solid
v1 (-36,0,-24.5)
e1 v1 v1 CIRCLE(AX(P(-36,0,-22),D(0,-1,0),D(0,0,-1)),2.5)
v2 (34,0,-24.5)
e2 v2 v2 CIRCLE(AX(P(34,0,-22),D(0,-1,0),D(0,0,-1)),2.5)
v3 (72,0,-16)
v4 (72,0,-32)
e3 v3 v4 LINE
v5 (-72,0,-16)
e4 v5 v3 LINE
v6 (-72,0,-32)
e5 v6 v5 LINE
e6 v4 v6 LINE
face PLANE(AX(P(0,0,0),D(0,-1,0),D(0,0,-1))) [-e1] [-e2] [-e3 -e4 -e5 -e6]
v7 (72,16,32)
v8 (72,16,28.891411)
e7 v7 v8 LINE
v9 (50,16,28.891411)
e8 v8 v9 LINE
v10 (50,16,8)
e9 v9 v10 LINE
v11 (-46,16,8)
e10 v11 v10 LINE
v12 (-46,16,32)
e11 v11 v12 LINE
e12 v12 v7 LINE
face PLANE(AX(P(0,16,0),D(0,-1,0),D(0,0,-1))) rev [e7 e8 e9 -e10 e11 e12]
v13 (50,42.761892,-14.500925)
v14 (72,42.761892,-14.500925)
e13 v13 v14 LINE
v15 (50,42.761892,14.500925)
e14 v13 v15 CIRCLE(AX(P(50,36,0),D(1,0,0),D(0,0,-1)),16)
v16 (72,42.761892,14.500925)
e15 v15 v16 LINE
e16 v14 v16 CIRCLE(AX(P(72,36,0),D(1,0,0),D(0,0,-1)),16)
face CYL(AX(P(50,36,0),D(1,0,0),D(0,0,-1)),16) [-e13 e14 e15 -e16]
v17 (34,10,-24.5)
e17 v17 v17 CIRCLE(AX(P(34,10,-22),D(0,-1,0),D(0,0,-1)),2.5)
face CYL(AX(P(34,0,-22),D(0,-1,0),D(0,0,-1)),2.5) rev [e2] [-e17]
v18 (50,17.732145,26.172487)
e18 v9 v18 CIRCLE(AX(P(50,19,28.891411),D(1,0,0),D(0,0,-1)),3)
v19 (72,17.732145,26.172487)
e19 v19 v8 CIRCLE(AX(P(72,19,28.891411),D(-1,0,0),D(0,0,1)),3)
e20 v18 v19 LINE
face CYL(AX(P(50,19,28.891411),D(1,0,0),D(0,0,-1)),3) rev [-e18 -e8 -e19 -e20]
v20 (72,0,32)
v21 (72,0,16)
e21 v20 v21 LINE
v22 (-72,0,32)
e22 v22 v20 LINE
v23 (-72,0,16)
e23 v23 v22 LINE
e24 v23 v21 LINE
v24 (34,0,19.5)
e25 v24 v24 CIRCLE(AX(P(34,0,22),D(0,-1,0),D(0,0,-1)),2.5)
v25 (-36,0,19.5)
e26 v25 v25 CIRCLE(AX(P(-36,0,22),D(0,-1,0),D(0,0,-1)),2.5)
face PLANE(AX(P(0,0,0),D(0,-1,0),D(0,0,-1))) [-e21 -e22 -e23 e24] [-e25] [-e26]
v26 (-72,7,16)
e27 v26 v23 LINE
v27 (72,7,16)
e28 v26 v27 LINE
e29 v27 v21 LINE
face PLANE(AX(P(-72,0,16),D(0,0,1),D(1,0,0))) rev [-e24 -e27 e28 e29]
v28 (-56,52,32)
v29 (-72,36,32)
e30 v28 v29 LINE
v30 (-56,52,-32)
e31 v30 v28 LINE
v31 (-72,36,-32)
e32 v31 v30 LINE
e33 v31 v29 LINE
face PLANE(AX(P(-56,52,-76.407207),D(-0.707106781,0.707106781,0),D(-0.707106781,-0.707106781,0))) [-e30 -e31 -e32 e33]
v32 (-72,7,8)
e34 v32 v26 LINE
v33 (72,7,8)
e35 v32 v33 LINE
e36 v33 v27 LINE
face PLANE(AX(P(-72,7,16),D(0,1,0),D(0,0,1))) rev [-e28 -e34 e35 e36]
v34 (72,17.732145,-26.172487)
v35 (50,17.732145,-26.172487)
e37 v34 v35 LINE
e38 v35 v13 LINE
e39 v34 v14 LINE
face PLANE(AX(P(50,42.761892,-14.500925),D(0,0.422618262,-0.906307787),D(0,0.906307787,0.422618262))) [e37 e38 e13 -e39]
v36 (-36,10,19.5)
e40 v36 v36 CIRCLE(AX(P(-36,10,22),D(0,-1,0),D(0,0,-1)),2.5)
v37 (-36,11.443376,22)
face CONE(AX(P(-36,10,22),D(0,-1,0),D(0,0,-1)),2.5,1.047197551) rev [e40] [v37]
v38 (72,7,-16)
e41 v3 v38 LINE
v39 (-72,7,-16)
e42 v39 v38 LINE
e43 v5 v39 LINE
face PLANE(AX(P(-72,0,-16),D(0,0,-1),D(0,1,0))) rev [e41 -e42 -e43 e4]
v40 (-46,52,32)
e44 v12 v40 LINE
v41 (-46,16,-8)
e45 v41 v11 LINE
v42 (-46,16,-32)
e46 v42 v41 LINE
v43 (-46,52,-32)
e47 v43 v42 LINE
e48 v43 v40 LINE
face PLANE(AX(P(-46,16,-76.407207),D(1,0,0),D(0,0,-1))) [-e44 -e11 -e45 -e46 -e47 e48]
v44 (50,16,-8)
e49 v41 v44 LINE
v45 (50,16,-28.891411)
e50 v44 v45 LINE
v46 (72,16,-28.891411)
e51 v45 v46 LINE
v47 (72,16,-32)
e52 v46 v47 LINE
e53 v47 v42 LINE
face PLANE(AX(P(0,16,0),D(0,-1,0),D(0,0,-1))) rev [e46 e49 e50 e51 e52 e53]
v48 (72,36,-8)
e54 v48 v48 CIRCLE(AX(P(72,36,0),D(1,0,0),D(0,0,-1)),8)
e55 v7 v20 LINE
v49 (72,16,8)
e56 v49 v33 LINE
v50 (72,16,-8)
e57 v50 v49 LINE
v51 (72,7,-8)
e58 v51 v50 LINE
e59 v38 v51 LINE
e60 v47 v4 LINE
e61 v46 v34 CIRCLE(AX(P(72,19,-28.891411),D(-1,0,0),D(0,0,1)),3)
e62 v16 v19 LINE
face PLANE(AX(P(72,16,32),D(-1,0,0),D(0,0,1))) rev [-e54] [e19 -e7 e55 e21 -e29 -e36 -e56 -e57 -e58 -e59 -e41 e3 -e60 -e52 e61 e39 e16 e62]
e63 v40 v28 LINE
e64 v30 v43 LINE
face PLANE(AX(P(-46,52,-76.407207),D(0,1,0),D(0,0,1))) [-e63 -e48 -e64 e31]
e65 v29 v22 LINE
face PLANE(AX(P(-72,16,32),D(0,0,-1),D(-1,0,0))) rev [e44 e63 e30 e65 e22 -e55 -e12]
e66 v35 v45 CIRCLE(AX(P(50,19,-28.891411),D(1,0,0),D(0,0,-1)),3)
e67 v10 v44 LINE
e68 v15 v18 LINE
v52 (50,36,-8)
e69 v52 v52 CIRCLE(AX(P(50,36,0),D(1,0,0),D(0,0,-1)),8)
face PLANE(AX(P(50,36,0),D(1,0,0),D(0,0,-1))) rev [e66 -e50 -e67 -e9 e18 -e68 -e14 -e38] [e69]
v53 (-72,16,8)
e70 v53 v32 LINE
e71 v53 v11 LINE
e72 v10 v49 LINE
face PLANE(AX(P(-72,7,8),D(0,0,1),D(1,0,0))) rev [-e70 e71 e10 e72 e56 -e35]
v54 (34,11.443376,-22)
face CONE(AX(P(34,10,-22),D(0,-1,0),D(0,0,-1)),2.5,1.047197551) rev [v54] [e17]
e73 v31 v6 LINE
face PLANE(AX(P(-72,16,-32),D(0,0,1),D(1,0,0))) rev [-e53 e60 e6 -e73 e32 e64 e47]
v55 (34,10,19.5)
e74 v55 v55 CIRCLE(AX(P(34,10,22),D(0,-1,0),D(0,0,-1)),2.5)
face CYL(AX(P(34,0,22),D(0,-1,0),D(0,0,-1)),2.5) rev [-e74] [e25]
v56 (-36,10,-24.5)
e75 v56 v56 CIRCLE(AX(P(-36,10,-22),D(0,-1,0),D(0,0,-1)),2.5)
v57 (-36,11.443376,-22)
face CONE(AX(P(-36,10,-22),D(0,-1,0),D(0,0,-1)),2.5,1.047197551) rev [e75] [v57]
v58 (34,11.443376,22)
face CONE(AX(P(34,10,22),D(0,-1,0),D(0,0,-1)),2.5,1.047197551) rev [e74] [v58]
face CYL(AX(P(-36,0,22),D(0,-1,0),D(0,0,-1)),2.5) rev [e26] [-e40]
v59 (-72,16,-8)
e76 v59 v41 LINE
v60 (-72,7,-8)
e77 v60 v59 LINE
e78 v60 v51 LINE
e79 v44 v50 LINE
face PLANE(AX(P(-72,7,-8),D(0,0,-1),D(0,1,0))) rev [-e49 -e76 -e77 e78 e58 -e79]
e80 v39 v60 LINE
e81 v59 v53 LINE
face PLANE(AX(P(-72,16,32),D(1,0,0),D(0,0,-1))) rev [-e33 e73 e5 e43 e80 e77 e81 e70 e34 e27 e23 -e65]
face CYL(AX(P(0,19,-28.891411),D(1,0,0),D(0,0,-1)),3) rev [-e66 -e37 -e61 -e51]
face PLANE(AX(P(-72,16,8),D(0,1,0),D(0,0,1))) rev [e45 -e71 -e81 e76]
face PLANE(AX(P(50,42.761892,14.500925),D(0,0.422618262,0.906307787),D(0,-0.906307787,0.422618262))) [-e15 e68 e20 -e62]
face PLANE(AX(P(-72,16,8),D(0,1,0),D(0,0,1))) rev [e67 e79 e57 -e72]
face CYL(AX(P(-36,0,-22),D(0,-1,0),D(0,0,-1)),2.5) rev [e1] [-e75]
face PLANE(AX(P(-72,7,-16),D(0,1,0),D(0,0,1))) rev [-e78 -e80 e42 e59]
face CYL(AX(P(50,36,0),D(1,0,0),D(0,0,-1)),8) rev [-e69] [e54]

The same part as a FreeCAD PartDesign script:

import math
import FreeCAD as App
import Part
import Sketcher

V = App.Vector
Q = App.Units.Quantity


def edges_at(feature, points):
    """Names of the edges that pass closest to the given points."""
    edges = feature.Shape.Edges
    near = lambda p: min(range(len(edges)), key=lambda i: edges[i].distToShape(Part.Vertex(*p))[0])
    return sorted({f"Edge{near(p) + 1}" for p in points})

doc = App.newDocument("Part")
body = doc.addObject("PartDesign::Body", "Body")

sketch1 = body.newObject("Sketcher::SketchObject", "Sketch")
sketch1.AttachmentSupport = (doc.getObject("XZ_Plane"), [""])
sketch1.MapMode = "FlatFace"
sketch1.addGeometry([
    Part.LineSegment(V(-72, -32, 0), V(-72, 32, 0)),
    Part.LineSegment(V(-72, 32, 0), V(72, 32, 0)),
    Part.LineSegment(V(72, 32, 0), V(72, -32, 0)),
    Part.LineSegment(V(72, -32, 0), V(-72, -32, 0)),
], False)
sketch1.addConstraint([
    Sketcher.Constraint("Coincident", 0, 2, 1, 1),
    Sketcher.Constraint("Coincident", 1, 2, 2, 1),
    Sketcher.Constraint("Coincident", 2, 2, 3, 1),
    Sketcher.Constraint("Coincident", 3, 2, 0, 1),
    Sketcher.Constraint("Vertical", 0),
    Sketcher.Constraint("Horizontal", 1),
    Sketcher.Constraint("Vertical", 2),
    Sketcher.Constraint("Horizontal", 3),
    Sketcher.Constraint("Symmetric", 0, 2, 2, 2, -1, 1),
    Sketcher.Constraint("DistanceX", 1, 1, 1, 2, 144.0),
    Sketcher.Constraint("DistanceY", 0, 1, 0, 2, 64.0),
])
pad1 = body.newObject("PartDesign::Pad", "Pad")
pad1.Profile = sketch1
pad1.Length = 16
pad1.Reversed = True

sketch2 = body.newObject("Sketcher::SketchObject", "Sketch001")
sketch2.AttachmentSupport = (doc.getObject("XY_Plane"), [""])
sketch2.MapMode = "FlatFace"
sketch2.AttachmentOffset = App.Placement(V(0, 0, 32), App.Rotation())
sketch2.addGeometry([
    Part.LineSegment(V(-46, 16, 0), V(-46, 52, 0)),
    Part.LineSegment(V(-46, 52, 0), V(-56, 52, 0)),
    Part.LineSegment(V(-56, 52, 0), V(-72, 36, 0)),
    Part.LineSegment(V(-72, 36, 0), V(-72, 16, 0)),
    Part.LineSegment(V(-72, 16, 0), V(-46, 16, 0)),
], False)
sketch2.addConstraint([
    Sketcher.Constraint("Coincident", 0, 2, 1, 1),
    Sketcher.Constraint("Coincident", 1, 2, 2, 1),
    Sketcher.Constraint("Coincident", 2, 2, 3, 1),
    Sketcher.Constraint("Coincident", 3, 2, 4, 1),
    Sketcher.Constraint("Coincident", 4, 2, 0, 1),
    Sketcher.Constraint("Vertical", 0),
    Sketcher.Constraint("Horizontal", 1),
    Sketcher.Constraint("Vertical", 3),
    Sketcher.Constraint("Horizontal", 4),
    Sketcher.Constraint("DistanceX", 1, 2, 1, 1, 10.0),
    Sketcher.Constraint("DistanceX", 4, 1, 4, 2, 26.0),
    Sketcher.Constraint("DistanceY", 0, 1, 0, 2, 36.0),
    Sketcher.Constraint("DistanceY", 3, 2, 3, 1, 20.0),
    Sketcher.Constraint("DistanceX", 0, 2, -1, 1, 46.0),
    Sketcher.Constraint("DistanceY", -1, 1, 0, 2, 52.0),
])
pad2 = body.newObject("PartDesign::Pad", "Pad001")
pad2.Profile = sketch2
pad2.Length = 64
pad2.Reversed = True

sketch3 = body.newObject("Sketcher::SketchObject", "Sketch002")
sketch3.AttachmentSupport = (doc.getObject("YZ_Plane"), [""])
sketch3.MapMode = "FlatFace"
sketch3.AttachmentOffset = App.Placement(V(0, 0, 72), App.Rotation())
sketch3.addGeometry([
    Part.LineSegment(V(43, 15, 0), V(16, 27, 0)),
    Part.LineSegment(V(16, 27, 0), V(16, -27, 0)),
    Part.LineSegment(V(16, -27, 0), V(43, -15, 0)),
    Part.ArcOfCircle(Part.Circle(V(36, 0, 0), V(0, 0, 1), 16), math.radians(-65), math.radians(65)),
    Part.Circle(V(36, 0, 0), V(0, 0, 1), 8),
], False)
sketch3.addConstraint([
    Sketcher.Constraint("Coincident", 0, 2, 1, 1),
    Sketcher.Constraint("Coincident", 1, 2, 2, 1),
    Sketcher.Constraint("Tangent", 2, 2, 3, 1),
    Sketcher.Constraint("Tangent", 3, 2, 0, 1),
    Sketcher.Constraint("Vertical", 1),
    Sketcher.Constraint("Coincident", 4, 3, 3, 3),
    Sketcher.Constraint("Symmetric", 2, 2, 3, 2, -1),
    Sketcher.Constraint("Diameter", 4, 16.0),
    Sketcher.Constraint("Radius", 3, 16.0),
    Sketcher.Constraint("Angle", 0, Q("155 deg")),
    Sketcher.Constraint("DistanceX", -1, 1, 3, 3, 36.0),
    Sketcher.Constraint("DistanceX", -1, 1, 0, 2, 16.0),
])
pad3 = body.newObject("PartDesign::Pad", "Pad002")
pad3.Profile = sketch3
pad3.Length = 22
pad3.Reversed = True
doc.recompute()

fillet = body.newObject("PartDesign::Fillet", "Fillet")
fillet.Base = (pad3, edges_at(pad3, [(61, 16, -26.98), (61, 16, 26.98)]))
fillet.Radius = 3

sketch4 = body.newObject("Sketcher::SketchObject", "Sketch003")
sketch4.AttachmentSupport = (doc.getObject("YZ_Plane"), [""])
sketch4.MapMode = "FlatFace"
sketch4.AttachmentOffset = App.Placement(V(0, 0, 72), App.Rotation())
sketch4.addGeometry([
    Part.LineSegment(V(7, 16, 0), V(0, 16, 0)),
    Part.LineSegment(V(0, 16, 0), V(0, -16, 0)),
    Part.LineSegment(V(0, -16, 0), V(7, -16, 0)),
    Part.LineSegment(V(7, -16, 0), V(7, -8, 0)),
    Part.LineSegment(V(7, -8, 0), V(16, -8, 0)),
    Part.LineSegment(V(16, -8, 0), V(16, 8, 0)),
    Part.LineSegment(V(16, 8, 0), V(7, 8, 0)),
    Part.LineSegment(V(7, 8, 0), V(7, 16, 0)),
], False)
sketch4.addConstraint([
    Sketcher.Constraint("Coincident", 0, 2, 1, 1),
    Sketcher.Constraint("Coincident", 1, 2, 2, 1),
    Sketcher.Constraint("Coincident", 2, 2, 3, 1),
    Sketcher.Constraint("Coincident", 3, 2, 4, 1),
    Sketcher.Constraint("Coincident", 4, 2, 5, 1),
    Sketcher.Constraint("Coincident", 5, 2, 6, 1),
    Sketcher.Constraint("Coincident", 6, 2, 7, 1),
    Sketcher.Constraint("Coincident", 7, 2, 0, 1),
    Sketcher.Constraint("Horizontal", 0),
    Sketcher.Constraint("Vertical", 1),
    Sketcher.Constraint("Horizontal", 2),
    Sketcher.Constraint("Vertical", 3),
    Sketcher.Constraint("Horizontal", 4),
    Sketcher.Constraint("Vertical", 5),
    Sketcher.Constraint("Horizontal", 6),
    Sketcher.Constraint("Vertical", 7),
    Sketcher.Constraint("Symmetric", 0, 2, 1, 2, -1, 1),
    Sketcher.Constraint("Symmetric", 3, 2, 6, 2, -1),
    Sketcher.Constraint("DistanceX", 0, 2, 0, 1, 7.0),
    Sketcher.Constraint("DistanceX", 4, 1, 4, 2, 9.0),
    Sketcher.Constraint("DistanceY", 1, 2, 1, 1, 32.0),
    Sketcher.Constraint("DistanceY", 3, 1, 3, 2, 8.0),
])
pocket1 = body.newObject("PartDesign::Pocket", "Pocket")
pocket1.Profile = sketch4
pocket1.Type = "ThroughAll"

sketch5 = body.newObject("Sketcher::SketchObject", "Sketch004")
sketch5.AttachmentSupport = (doc.getObject("XZ_Plane"), [""])
sketch5.MapMode = "FlatFace"
sketch5.addGeometry([
    Part.Circle(V(34, 22, 0), V(0, 0, 1), 2.5),
    Part.Circle(V(-36, 22, 0), V(0, 0, 1), 2.5),
    Part.Circle(V(-36, -22, 0), V(0, 0, 1), 2.5),
    Part.Circle(V(34, -22, 0), V(0, 0, 1), 2.5),
], False)
sketch5.addConstraint([
    Sketcher.Constraint("Equal", 0, 1),
    Sketcher.Constraint("Equal", 1, 2),
    Sketcher.Constraint("Equal", 2, 3),
    Sketcher.Constraint("Symmetric", 1, 3, 2, 3, -1),
    Sketcher.Constraint("Symmetric", 0, 3, 3, 3, -1),
    Sketcher.Constraint("Horizontal", 0, 3, 1, 3),
    Sketcher.Constraint("Diameter", 0, 5.0),
    Sketcher.Constraint("DistanceX", -1, 1, 0, 3, 34.0),
    Sketcher.Constraint("DistanceY", -1, 1, 0, 3, 22.0),
    Sketcher.Constraint("DistanceX", 1, 3, -1, 1, 36.0),
])
doc.recompute()
hole = body.newObject("PartDesign::Hole", "Hole")
hole.Profile = sketch5
hole.ThreadType = "None"
hole.Diameter = 5
hole.DepthType = "Dimension"
hole.Depth = 10
hole.DrillPoint = "Angled"
hole.DrillPointAngle = 120

doc.recompute()
